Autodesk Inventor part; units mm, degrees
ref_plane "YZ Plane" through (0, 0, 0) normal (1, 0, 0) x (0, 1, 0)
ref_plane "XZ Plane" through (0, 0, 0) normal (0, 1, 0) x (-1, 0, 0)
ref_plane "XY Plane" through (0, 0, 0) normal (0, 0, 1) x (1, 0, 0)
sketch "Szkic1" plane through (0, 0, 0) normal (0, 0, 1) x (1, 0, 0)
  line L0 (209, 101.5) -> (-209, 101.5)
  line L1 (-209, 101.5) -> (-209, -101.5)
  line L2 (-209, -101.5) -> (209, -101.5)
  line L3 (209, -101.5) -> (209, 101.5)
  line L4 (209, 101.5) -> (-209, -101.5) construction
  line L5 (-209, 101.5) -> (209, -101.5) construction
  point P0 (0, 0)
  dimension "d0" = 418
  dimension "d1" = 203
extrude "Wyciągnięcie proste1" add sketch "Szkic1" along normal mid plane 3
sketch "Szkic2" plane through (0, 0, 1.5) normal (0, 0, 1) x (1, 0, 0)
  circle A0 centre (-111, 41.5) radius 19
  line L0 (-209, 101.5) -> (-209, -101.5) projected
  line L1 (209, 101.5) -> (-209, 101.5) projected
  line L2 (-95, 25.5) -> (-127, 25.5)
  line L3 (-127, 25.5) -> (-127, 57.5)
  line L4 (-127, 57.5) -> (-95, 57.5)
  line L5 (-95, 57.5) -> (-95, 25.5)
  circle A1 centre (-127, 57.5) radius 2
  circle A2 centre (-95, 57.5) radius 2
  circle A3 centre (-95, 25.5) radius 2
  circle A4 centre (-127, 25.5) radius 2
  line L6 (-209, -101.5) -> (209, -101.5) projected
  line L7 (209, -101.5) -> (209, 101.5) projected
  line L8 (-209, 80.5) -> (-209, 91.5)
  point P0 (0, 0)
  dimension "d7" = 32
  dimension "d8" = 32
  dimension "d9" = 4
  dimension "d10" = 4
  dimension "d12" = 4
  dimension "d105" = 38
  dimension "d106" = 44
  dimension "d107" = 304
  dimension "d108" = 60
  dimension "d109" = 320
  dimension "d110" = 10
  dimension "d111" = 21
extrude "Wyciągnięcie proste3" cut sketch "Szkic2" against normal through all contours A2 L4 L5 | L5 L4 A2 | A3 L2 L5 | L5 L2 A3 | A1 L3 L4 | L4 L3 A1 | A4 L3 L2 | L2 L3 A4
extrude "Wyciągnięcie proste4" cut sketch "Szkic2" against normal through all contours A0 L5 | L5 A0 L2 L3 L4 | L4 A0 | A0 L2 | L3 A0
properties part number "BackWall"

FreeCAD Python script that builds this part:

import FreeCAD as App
import Part
import Sketcher
Q = App.Units.Quantity


def add_polygon(sketch, points):
    """Adds a closed chain of lines whose ends are joined by coincident constraints."""
    first, n = sketch.GeometryCount, len(points)
    for a, b in zip(points, points[1:] + points[:1]):
        sketch.addGeometry(Part.LineSegment(App.Vector(*a, 0), App.Vector(*b, 0)), False)
    for i in range(n):
        sketch.addConstraint(Sketcher.Constraint("Coincident", first + i, 2, first + (i + 1) % n, 1))

doc = App.newDocument("Part")
params = doc.addObject("Spreadsheet::Sheet", "Params")
for row, (alias, value) in enumerate([
    ("sketch1_width", "418 mm"),
    ("sketch1_height", "203 mm"),
    ("pad1_length", "3 mm"),
    ("sketch2_diameter", "4 mm"),
    ("sketch3_diameter", "38 mm"),
], start=1):
    params.set(f"A{row}", alias)
    params.set(f"B{row}", "=" + value)
    params.setAlias(f"B{row}", alias)

body = doc.addObject("PartDesign::Body", "Body")

# Sketch on XY plane
sketch1 = doc.addObject("Sketcher::SketchObject", "Sketch")
body.addObject(sketch1)
sketch1.AttachmentSupport = (doc.XY_Plane, [""])
sketch1.MapMode = "FlatFace"
add_polygon(sketch1, [(209, -102), (209, 102), (-209, 102), (-209, -102)])  # lines 0-3
sketch1.addConstraint(Sketcher.Constraint("Vertical", 0))
sketch1.addConstraint(Sketcher.Constraint("Horizontal", 1))
sketch1.addConstraint(Sketcher.Constraint("Vertical", 2))
sketch1.addConstraint(Sketcher.Constraint("Horizontal", 3))
sketch1.addConstraint(Sketcher.Constraint("Symmetric", 0, 2, 2, 2, -1, 1))
sketch1.addConstraint(Sketcher.Constraint("DistanceX", 1, 2, 1, 1, Q("418 mm")))
sketch1.addConstraint(Sketcher.Constraint("DistanceY", 0, 1, 0, 2, Q("203 mm")))
sketch1.setExpression("Constraints[9]", "Params.sketch1_width")
sketch1.setExpression("Constraints[10]", "Params.sketch1_height")
pad1 = doc.addObject("PartDesign::Pad", "Pad")
body.addObject(pad1)
pad1.Profile = sketch1
pad1.setExpression("Length", "Params.pad1_length")
pad1.Midplane = True

# Sketch on XY plane
sketch2 = doc.addObject("Sketcher::SketchObject", "Sketch001")
body.addObject(sketch2)
sketch2.AttachmentSupport = (doc.XY_Plane, [""])
sketch2.MapMode = "FlatFace"
sketch2.AttachmentOffset = App.Placement(App.Vector(0, 0, 1.5), App.Rotation())
sketch2.addGeometry(Part.Circle(App.Vector(-95, 57.5, 0), App.Vector(0, 0, 1), 2), False)
sketch2.addGeometry(Part.Circle(App.Vector(-95, 25.5, 0), App.Vector(0, 0, 1), 2), False)
sketch2.addGeometry(Part.Circle(App.Vector(-127, 57.5, 0), App.Vector(0, 0, 1), 2), False)
sketch2.addGeometry(Part.Circle(App.Vector(-127, 25.5, 0), App.Vector(0, 0, 1), 2), False)
sketch2.addConstraint(Sketcher.Constraint("Equal", 0, 1))
sketch2.addConstraint(Sketcher.Constraint("Equal", 1, 2))
sketch2.addConstraint(Sketcher.Constraint("Equal", 2, 3))
sketch2.addConstraint(Sketcher.Constraint("Horizontal", 0, 3, 2, 3))
sketch2.addConstraint(Sketcher.Constraint("Horizontal", 1, 3, 3, 3))
sketch2.addConstraint(Sketcher.Constraint("Vertical", 0, 3, 1, 3))
sketch2.addConstraint(Sketcher.Constraint("Vertical", 2, 3, 3, 3))
sketch2.addConstraint(Sketcher.Constraint("Diameter", 0, Q("4 mm")))
sketch2.addConstraint(Sketcher.Constraint("DistanceY", 1, 3, 0, 3, Q("32 mm")))
sketch2.addConstraint(Sketcher.Constraint("DistanceX", 2, 3, 0, 3, Q("32 mm")))
sketch2.addConstraint(Sketcher.Constraint("DistanceX", 0, 3, -1, 1, Q("95 mm")))
sketch2.addConstraint(Sketcher.Constraint("DistanceY", -1, 1, 0, 3, Q("57.5 mm")))
sketch2.setExpression("Constraints[7]", "Params.sketch2_diameter")
pocket1 = doc.addObject("PartDesign::Pocket", "Pocket")
body.addObject(pocket1)
pocket1.Profile = sketch2
pocket1.Type = "ThroughAll"

# Sketch on XY plane
sketch3 = doc.addObject("Sketcher::SketchObject", "Sketch002")
body.addObject(sketch3)
sketch3.AttachmentSupport = (doc.XY_Plane, [""])
sketch3.MapMode = "FlatFace"
sketch3.AttachmentOffset = App.Placement(App.Vector(0, 0, 1.5), App.Rotation())
sketch3.addGeometry(Part.Circle(App.Vector(-111, 42, 0), App.Vector(0, 0, 1), 19), False)
sketch3.addConstraint(Sketcher.Constraint("Diameter", 0, Q("38 mm")))
sketch3.addConstraint(Sketcher.Constraint("DistanceX", 0, 3, -1, 1, Q("111 mm")))
sketch3.addConstraint(Sketcher.Constraint("DistanceY", -1, 1, 0, 3, Q("41.5 mm")))
sketch3.setExpression("Constraints[0]", "Params.sketch3_diameter")
pocket2 = doc.addObject("PartDesign::Pocket", "Pocket001")
body.addObject(pocket2)
pocket2.Profile = sketch3
pocket2.Type = "ThroughAll"

doc.recompute()
